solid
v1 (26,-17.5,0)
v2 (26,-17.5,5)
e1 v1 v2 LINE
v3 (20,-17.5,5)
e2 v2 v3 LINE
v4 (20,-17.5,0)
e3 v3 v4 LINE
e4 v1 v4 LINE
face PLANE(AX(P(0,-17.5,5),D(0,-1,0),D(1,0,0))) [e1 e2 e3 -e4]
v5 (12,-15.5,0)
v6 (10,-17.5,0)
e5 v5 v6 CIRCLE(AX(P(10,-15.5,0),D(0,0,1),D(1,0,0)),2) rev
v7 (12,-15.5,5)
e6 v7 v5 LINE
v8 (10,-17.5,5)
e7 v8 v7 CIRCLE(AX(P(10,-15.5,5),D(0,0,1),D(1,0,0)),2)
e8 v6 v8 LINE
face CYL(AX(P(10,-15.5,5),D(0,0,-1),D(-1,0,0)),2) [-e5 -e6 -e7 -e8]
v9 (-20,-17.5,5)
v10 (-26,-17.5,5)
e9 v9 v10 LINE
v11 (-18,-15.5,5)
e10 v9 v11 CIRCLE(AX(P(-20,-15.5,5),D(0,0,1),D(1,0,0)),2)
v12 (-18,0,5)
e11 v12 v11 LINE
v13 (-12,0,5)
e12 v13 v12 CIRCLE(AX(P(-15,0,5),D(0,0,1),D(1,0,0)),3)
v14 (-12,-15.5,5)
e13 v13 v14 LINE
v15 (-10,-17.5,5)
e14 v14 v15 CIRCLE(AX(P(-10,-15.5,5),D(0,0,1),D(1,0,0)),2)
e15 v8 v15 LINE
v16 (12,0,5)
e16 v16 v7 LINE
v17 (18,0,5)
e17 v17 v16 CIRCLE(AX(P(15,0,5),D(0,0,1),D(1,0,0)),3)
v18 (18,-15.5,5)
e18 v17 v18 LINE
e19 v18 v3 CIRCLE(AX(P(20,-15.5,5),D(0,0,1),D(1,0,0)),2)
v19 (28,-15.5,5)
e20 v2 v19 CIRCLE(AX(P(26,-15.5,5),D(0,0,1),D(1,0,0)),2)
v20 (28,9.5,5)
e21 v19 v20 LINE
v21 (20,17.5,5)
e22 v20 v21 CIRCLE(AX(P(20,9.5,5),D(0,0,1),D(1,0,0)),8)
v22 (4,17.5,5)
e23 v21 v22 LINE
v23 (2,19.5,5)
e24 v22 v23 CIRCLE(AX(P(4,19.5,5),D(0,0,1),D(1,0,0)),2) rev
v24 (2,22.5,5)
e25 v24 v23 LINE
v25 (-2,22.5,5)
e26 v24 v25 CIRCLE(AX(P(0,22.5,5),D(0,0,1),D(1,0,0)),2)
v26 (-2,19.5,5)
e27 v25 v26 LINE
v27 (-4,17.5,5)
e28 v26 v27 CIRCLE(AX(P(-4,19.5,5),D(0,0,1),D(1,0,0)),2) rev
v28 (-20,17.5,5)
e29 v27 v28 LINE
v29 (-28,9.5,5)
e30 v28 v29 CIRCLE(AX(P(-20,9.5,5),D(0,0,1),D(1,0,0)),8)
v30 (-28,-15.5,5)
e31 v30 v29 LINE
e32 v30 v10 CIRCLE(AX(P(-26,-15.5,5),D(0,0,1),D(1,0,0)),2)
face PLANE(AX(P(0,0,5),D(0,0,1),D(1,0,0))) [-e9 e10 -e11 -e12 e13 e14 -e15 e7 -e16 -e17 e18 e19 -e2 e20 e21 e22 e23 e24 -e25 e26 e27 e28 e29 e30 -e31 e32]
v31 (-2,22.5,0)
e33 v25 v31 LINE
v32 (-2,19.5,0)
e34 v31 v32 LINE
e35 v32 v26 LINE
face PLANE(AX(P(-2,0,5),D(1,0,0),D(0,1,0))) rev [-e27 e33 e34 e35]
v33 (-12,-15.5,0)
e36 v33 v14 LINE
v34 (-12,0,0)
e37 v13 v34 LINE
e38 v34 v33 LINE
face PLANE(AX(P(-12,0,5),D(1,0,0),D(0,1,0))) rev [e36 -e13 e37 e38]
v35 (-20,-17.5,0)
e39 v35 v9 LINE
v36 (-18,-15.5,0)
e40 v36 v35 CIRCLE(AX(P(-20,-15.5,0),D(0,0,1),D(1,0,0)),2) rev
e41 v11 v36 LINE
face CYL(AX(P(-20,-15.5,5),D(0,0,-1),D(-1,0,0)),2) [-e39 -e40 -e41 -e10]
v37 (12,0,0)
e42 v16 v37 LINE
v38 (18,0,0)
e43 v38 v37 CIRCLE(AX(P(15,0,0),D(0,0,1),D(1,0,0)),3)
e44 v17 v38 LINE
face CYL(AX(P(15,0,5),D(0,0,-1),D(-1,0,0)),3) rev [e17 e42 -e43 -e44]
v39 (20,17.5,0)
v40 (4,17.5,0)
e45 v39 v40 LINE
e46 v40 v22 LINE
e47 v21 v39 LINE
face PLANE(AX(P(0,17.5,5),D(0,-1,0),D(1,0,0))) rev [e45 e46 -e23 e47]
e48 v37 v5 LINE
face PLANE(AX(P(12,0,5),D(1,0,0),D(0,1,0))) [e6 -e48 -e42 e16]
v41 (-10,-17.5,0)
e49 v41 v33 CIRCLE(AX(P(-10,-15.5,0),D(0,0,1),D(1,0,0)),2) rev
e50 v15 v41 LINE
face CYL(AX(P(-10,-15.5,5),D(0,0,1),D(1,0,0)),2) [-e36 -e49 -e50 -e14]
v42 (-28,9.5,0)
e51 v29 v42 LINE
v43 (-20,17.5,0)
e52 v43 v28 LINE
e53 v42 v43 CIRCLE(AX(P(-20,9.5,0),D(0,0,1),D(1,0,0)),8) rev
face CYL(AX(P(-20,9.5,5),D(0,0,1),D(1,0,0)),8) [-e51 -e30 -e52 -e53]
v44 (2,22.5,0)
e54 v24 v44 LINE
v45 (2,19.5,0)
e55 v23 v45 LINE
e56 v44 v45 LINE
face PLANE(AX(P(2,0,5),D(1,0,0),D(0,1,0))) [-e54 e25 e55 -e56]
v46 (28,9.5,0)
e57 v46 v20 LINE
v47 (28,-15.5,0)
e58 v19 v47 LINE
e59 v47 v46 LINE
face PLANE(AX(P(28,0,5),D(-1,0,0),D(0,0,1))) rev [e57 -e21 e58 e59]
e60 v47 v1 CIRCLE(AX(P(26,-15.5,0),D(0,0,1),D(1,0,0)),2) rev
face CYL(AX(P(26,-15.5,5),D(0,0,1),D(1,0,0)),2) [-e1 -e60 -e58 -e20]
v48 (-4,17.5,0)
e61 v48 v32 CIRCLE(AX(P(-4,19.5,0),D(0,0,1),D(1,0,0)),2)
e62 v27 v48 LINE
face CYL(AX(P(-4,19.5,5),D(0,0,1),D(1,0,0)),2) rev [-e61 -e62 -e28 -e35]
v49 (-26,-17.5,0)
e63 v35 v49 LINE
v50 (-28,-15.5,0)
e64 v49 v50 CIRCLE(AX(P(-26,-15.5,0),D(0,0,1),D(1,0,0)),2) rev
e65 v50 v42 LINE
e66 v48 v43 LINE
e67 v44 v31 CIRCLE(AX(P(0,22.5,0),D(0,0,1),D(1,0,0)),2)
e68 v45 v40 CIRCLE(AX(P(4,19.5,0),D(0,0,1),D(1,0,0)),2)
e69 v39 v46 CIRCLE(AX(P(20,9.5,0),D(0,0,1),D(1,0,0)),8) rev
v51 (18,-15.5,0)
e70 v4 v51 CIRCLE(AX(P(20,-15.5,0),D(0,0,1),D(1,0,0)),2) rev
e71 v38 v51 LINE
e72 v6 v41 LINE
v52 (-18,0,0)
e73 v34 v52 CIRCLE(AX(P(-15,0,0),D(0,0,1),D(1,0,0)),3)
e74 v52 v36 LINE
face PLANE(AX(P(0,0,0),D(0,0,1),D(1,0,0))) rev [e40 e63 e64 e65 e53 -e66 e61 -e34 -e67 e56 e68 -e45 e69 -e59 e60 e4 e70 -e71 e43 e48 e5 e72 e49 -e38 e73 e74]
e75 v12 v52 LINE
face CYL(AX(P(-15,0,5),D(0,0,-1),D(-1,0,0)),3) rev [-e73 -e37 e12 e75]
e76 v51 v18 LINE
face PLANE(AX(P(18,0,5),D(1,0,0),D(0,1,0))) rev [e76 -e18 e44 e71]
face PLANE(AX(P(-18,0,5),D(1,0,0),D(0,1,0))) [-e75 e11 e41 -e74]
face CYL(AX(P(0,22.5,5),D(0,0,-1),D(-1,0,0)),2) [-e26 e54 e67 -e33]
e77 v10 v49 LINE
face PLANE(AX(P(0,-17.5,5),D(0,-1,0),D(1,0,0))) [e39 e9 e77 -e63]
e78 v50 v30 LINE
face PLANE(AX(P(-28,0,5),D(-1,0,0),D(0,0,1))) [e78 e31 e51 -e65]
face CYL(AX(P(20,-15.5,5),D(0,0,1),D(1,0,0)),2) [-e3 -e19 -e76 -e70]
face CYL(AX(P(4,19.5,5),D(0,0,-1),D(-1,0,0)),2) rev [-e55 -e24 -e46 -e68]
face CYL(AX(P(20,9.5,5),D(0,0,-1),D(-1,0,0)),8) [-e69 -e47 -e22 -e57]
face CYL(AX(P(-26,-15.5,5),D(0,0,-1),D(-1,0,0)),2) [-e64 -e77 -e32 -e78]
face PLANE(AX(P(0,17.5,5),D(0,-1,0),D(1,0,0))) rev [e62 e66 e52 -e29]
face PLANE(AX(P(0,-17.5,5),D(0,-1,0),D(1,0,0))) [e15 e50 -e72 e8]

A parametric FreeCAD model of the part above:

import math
import FreeCAD as App
import Part
import Sketcher
from FreeCAD import Vector
Q = App.Units.Quantity


def edges_at(feature, points):
    """Names of the edges that pass closest to the given points."""
    edges = feature.Shape.Edges
    near = lambda p: min(range(len(edges)), key=lambda i: edges[i].distToShape(Part.Vertex(*p))[0])
    return sorted({f"Edge{near(p) + 1}" for p in points})

doc = App.newDocument("Part")
body = doc.addObject("PartDesign::Body", "Body")

# Sketch on XY plane
sketch1 = doc.addObject("Sketcher::SketchObject", "Sketch")
body.addObject(sketch1)
sketch1.AttachmentSupport = (doc.XY_Plane, [""])
sketch1.MapMode = "FlatFace"
sketch1.addGeometry([
    Part.ArcOfCircle(Part.Circle(Vector(15, 0, 0), Vector(0, 0, 1), 3), math.radians(0), math.radians(180)),  # 0
    Part.LineSegment(Vector(18, 0, 0), Vector(18, -17.5, 0)),  # 1
    Part.LineSegment(Vector(18, -17.5, 0), Vector(28, -17.5, 0)),  # 2
    Part.LineSegment(Vector(28, -17.5, 0), Vector(28, 17.5, 0)),  # 3
    Part.LineSegment(Vector(28, 17.5, 0), Vector(2, 17.5, 0)),  # 4
    Part.LineSegment(Vector(2, 17.5, 0), Vector(2, 22.5, 0)),  # 5
    Part.ArcOfCircle(Part.Circle(Vector(0, 22.5, 0), Vector(0, 0, 1), 2), math.radians(0), math.radians(180)),  # 6
    Part.LineSegment(Vector(-2, 22.5, 0), Vector(-2, 17.5, 0)),  # 7
    Part.LineSegment(Vector(-2, 17.5, 0), Vector(-28, 17.5, 0)),  # 8
    Part.LineSegment(Vector(-28, 17.5, 0), Vector(-28, -17.5, 0)),  # 9
    Part.LineSegment(Vector(-28, -17.5, 0), Vector(-18, -17.5, 0)),  # 10
    Part.LineSegment(Vector(-18, -17.5, 0), Vector(-18, 0, 0)),  # 11
    Part.ArcOfCircle(Part.Circle(Vector(-15, 0, 0), Vector(0, 0, 1), 3), math.radians(0), math.radians(180)),  # 12
    Part.LineSegment(Vector(-12, 0, 0), Vector(-12, -17.5, 0)),  # 13
    Part.LineSegment(Vector(-12, -17.5, 0), Vector(12, -17.5, 0)),  # 14
    Part.LineSegment(Vector(12, -17.5, 0), Vector(12, 0, 0)),  # 15
], False)
sketch1.addConstraint([
    Sketcher.Constraint("Tangent", 0, 1, 1, 1),
    Sketcher.Constraint("Coincident", 1, 2, 2, 1),
    Sketcher.Constraint("Coincident", 2, 2, 3, 1),
    Sketcher.Constraint("Coincident", 3, 2, 4, 1),
    Sketcher.Constraint("Coincident", 4, 2, 5, 1),
    Sketcher.Constraint("Tangent", 5, 2, 6, 1),
    Sketcher.Constraint("Tangent", 6, 2, 7, 1),
    Sketcher.Constraint("Coincident", 7, 2, 8, 1),
    Sketcher.Constraint("Coincident", 8, 2, 9, 1),
    Sketcher.Constraint("Coincident", 9, 2, 10, 1),
    Sketcher.Constraint("Coincident", 10, 2, 11, 1),
    Sketcher.Constraint("Tangent", 11, 2, 12, 2),
    Sketcher.Constraint("Tangent", 12, 1, 13, 1),
    Sketcher.Constraint("Coincident", 13, 2, 14, 1),
    Sketcher.Constraint("Coincident", 14, 2, 15, 1),
    Sketcher.Constraint("Tangent", 15, 2, 0, 2),
    Sketcher.Constraint("Vertical", 1),
    Sketcher.Constraint("Horizontal", 2),
    Sketcher.Constraint("Vertical", 3),
    Sketcher.Constraint("Horizontal", 4),
    Sketcher.Constraint("Vertical", 5),
    Sketcher.Constraint("Vertical", 7),
    Sketcher.Constraint("Horizontal", 8),
    Sketcher.Constraint("Vertical", 9),
    Sketcher.Constraint("Horizontal", 10),
    Sketcher.Constraint("Vertical", 11),
    Sketcher.Constraint("Vertical", 13),
    Sketcher.Constraint("Horizontal", 14),
    Sketcher.Constraint("Vertical", 15),
    Sketcher.Constraint("Equal", 0, 12),
    Sketcher.Constraint("Symmetric", 0, 3, 12, 3, -1, 1),
    Sketcher.Constraint("Symmetric", 2, 2, 8, 2, -1, 1),
    Sketcher.Constraint("Symmetric", 4, 2, 7, 2, -2),
    Sketcher.Constraint("PointOnObject", 0, 3, -1),
    Sketcher.Constraint("Horizontal", 2, 2, 9, 2),
    Sketcher.Constraint("Horizontal", 10, 2, 13, 2),
    Sketcher.Constraint("Radius", 0, Q("3 mm")),
    Sketcher.Constraint("Radius", 6, Q("2 mm")),
    Sketcher.Constraint("DistanceX", 2, 1, 2, 2, Q("10 mm")),
    Sketcher.Constraint("DistanceX", 4, 2, 4, 1, Q("26 mm")),
    Sketcher.Constraint("DistanceY", 3, 1, 3, 2, Q("35 mm")),
    Sketcher.Constraint("DistanceY", 5, 1, 5, 2, Q("5 mm")),
])
pad1 = doc.addObject("PartDesign::Pad", "Pad")
body.addObject(pad1)
pad1.Profile = sketch1
pad1.Length = 5
doc.recompute()

fillet = doc.addObject("PartDesign::Fillet", "Fillet")
body.addObject(fillet)
fillet.Base = (pad1, edges_at(pad1, [
    (12, -17.5, 2.5),
    (-12, -17.5, 2.5),
    (-18, -17.5, 2.5),
    (-28, -17.5, 2.5),
    (-2, 17.5, 2.5),
    (2, 17.5, 2.5),
    (28, -17.5, 2.5),
    (18, -17.5, 2.5),
]))
fillet.Radius = 2
doc.recompute()

fillet2 = doc.addObject("PartDesign::Fillet", "Fillet001")
body.addObject(fillet2)
fillet2.Base = (fillet, edges_at(fillet, [(-28, 17.5, 2.5), (28, 17.5, 2.5)]))
fillet2.Radius = 8

doc.recompute()
